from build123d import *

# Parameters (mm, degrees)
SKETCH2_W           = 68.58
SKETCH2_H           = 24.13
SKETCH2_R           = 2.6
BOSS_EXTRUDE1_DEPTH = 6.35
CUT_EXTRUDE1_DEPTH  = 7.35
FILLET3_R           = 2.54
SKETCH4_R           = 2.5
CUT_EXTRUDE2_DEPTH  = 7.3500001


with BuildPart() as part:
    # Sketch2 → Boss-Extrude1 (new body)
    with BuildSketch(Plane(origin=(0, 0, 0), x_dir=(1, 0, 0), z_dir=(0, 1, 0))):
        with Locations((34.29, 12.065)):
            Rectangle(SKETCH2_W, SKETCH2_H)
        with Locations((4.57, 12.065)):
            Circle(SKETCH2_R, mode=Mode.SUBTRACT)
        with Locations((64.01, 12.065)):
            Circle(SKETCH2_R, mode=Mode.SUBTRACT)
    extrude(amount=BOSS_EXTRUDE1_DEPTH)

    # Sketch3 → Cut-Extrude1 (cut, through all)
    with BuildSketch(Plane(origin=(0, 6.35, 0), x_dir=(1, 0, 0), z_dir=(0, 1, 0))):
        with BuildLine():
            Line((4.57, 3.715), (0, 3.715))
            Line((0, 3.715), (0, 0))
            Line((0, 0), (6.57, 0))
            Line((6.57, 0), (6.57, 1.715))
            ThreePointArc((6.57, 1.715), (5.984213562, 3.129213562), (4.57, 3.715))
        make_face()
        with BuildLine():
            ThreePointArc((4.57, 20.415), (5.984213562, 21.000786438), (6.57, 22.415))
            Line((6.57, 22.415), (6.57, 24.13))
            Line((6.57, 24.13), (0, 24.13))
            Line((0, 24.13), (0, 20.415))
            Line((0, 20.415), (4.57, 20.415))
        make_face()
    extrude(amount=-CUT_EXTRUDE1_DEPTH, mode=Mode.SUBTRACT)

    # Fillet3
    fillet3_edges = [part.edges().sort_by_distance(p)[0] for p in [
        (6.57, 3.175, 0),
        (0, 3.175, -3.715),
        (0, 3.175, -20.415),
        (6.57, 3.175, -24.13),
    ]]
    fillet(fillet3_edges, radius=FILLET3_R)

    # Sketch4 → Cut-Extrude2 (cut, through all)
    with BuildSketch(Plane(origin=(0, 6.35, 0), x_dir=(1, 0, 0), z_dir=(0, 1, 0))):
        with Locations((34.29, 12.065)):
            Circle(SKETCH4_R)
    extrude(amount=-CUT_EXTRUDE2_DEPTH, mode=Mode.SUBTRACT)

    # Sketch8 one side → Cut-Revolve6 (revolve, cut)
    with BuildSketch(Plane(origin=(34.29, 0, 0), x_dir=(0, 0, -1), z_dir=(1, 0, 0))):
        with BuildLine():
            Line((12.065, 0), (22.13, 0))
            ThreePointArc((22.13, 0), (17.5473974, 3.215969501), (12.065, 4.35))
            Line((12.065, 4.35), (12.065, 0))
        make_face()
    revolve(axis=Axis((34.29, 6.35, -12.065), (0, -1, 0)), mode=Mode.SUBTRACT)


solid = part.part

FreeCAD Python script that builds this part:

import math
import FreeCAD as App
import Part
import Sketcher

V = App.Vector
Q = App.Units.Quantity


def edges_at(feature, points):
    """Names of the edges that pass closest to the given points."""
    edges = feature.Shape.Edges
    near = lambda p: min(range(len(edges)), key=lambda i: edges[i].distToShape(Part.Vertex(*p))[0])
    return sorted({f"Edge{near(p) + 1}" for p in points})

doc = App.newDocument("Part")
body = doc.addObject("PartDesign::Body", "Body")

# Sketch on XZ plane
sketch1 = doc.addObject("Sketcher::SketchObject", "Sketch")
body.addObject(sketch1)
sketch1.AttachmentSupport = (doc.XZ_Plane, [""])
sketch1.MapMode = "FlatFace"
sketch1.addGeometry([
    Part.LineSegment(V(0, -24.1, 0), V(0, 0, 0)),  # 0
    Part.LineSegment(V(0, 0, 0), V(68.6, 0, 0)),  # 1
    Part.LineSegment(V(68.6, 0, 0), V(68.6, -24.1, 0)),  # 2
    Part.LineSegment(V(68.6, -24.1, 0), V(0, -24.1, 0)),  # 3
    Part.Circle(V(4.6, -12.1, 0), V(0, 0, 1), 2.6),  # 4
    Part.Circle(V(64, -12.1, 0), V(0, 0, 1), 2.6),  # 5
], False)
sketch1.addConstraint([
    Sketcher.Constraint("Coincident", 0, 2, 1, 1),
    Sketcher.Constraint("Coincident", 1, 2, 2, 1),
    Sketcher.Constraint("Coincident", 2, 2, 3, 1),
    Sketcher.Constraint("Coincident", 3, 2, 0, 1),
    Sketcher.Constraint("Vertical", 0),
    Sketcher.Constraint("Horizontal", 1),
    Sketcher.Constraint("Vertical", 2),
    Sketcher.Constraint("Horizontal", 3),
    Sketcher.Constraint("Coincident", 0, 2, -1, 1),
    Sketcher.Constraint("Equal", 4, 5),
    Sketcher.Constraint("Horizontal", 4, 3, 5, 3),
    Sketcher.Constraint("DistanceX", 1, 1, 1, 2, Q("2.7 in")),
    Sketcher.Constraint("DistanceY", 0, 1, 0, 2, Q("0.95 in")),
    Sketcher.Constraint("Diameter", 4, 5.2),
    Sketcher.Constraint("DistanceY", 4, 3, -1, 1, Q("0.475 in")),
    Sketcher.Constraint("DistanceX", -1, 1, 4, 3, 4.57),
    Sketcher.Constraint("DistanceX", -1, 1, 5, 3, 64.01),
])
pad1 = doc.addObject("PartDesign::Pad", "Pad")
body.addObject(pad1)
pad1.Profile = sketch1
pad1.Length = Q("0.25 in")
pad1.Reversed = True

# Sketch on XZ plane
sketch2 = doc.addObject("Sketcher::SketchObject", "Sketch001")
body.addObject(sketch2)
sketch2.AttachmentSupport = (doc.XZ_Plane, [""])
sketch2.MapMode = "FlatFace"
sketch2.AttachmentOffset = App.Placement(V(0, 0, -0.25 * 25.4), App.Rotation())
sketch2.addGeometry([
    Part.LineSegment(V(4.6, -3.7, 0), V(0, -3.7, 0)),  # 0
    Part.LineSegment(V(0, -3.7, 0), V(0, 0, 0)),  # 1
    Part.LineSegment(V(0, 0, 0), V(6.6, 0, 0)),  # 2
    Part.LineSegment(V(6.6, 0, 0), V(6.6, -1.7, 0)),  # 3
    Part.ArcOfCircle(Part.Circle(V(4.6, -1.7, 0), V(0, 0, 1), 2), math.radians(-90), math.radians(0)),  # 4
    Part.ArcOfCircle(Part.Circle(V(4.6, -22.4, 0), V(0, 0, 1), 2), math.radians(0), math.radians(90)),  # 5
    Part.LineSegment(V(6.6, -22.4, 0), V(6.6, -24.1, 0)),  # 6
    Part.LineSegment(V(6.6, -24.1, 0), V(0, -24.1, 0)),  # 7
    Part.LineSegment(V(0, -24.1, 0), V(0, -20.4, 0)),  # 8
    Part.LineSegment(V(0, -20.4, 0), V(4.6, -20.4, 0)),  # 9
], False)
sketch2.addConstraint([
    Sketcher.Constraint("Coincident", 0, 2, 1, 1),
    Sketcher.Constraint("Coincident", 1, 2, 2, 1),
    Sketcher.Constraint("Coincident", 2, 2, 3, 1),
    Sketcher.Constraint("Tangent", 3, 2, 4, 2),
    Sketcher.Constraint("Tangent", 4, 1, 0, 1),
    Sketcher.Constraint("Tangent", 5, 1, 6, 1),
    Sketcher.Constraint("Coincident", 6, 2, 7, 1),
    Sketcher.Constraint("Coincident", 7, 2, 8, 1),
    Sketcher.Constraint("Coincident", 8, 2, 9, 1),
    Sketcher.Constraint("Tangent", 9, 2, 5, 2),
    Sketcher.Constraint("Horizontal", 0),
    Sketcher.Constraint("Vertical", 1),
    Sketcher.Constraint("Horizontal", 2),
    Sketcher.Constraint("Vertical", 3),
    Sketcher.Constraint("Vertical", 6),
    Sketcher.Constraint("Horizontal", 7),
    Sketcher.Constraint("Vertical", 8),
    Sketcher.Constraint("Horizontal", 9),
    Sketcher.Constraint("Coincident", 1, 2, -1, 1),
    Sketcher.Constraint("Equal", 4, 5),
    Sketcher.Constraint("PointOnObject", 7, 2, -2),
    Sketcher.Constraint("Vertical", 4, 3, 5, 3),
    Sketcher.Constraint("Equal", 3, 6),
    Sketcher.Constraint("DistanceY", 6, 2, -1, 1, Q("0.95 in")),
    Sketcher.Constraint("Radius", 4, 2.0),
    Sketcher.Constraint("DistanceX", 0, 2, 0, 1, 4.57),
    Sketcher.Constraint("DistanceY", 1, 1, 1, 2, 3.715),
])
pocket1 = doc.addObject("PartDesign::Pocket", "Pocket")
body.addObject(pocket1)
pocket1.Profile = sketch2
pocket1.Type = "ThroughAll"
pocket1.Reversed = True
doc.recompute()

fillet = doc.addObject("PartDesign::Fillet", "Fillet")
body.addObject(fillet)
fillet.Base = (pocket1, edges_at(pocket1, [
    (6.57, 3.175, 0),
    (0, 3.175, -3.715),
    (0, 3.175, -20.415),
    (6.57, 3.175, -24.13),
]))
fillet.Radius = Q("0.1 in")

# Sketch on XZ plane
sketch3 = doc.addObject("Sketcher::SketchObject", "Sketch002")
body.addObject(sketch3)
sketch3.AttachmentSupport = (doc.XZ_Plane, [""])
sketch3.MapMode = "FlatFace"
sketch3.AttachmentOffset = App.Placement(V(0, 0, -0.25 * 25.4), App.Rotation())
sketch3.addGeometry(Part.Circle(V(34.3, -12.1, 0), V(0, 0, 1), 2.5), False)
sketch3.addConstraint([
    Sketcher.Constraint("Diameter", 0, 5.0),
    Sketcher.Constraint("DistanceX", -1, 1, 0, 3, Q("1.35 in")),
    Sketcher.Constraint("DistanceY", 0, 3, -1, 1, Q("0.475 in")),
])
pocket2 = doc.addObject("PartDesign::Pocket", "Pocket001")
body.addObject(pocket2)
pocket2.Profile = sketch3
pocket2.Type = "ThroughAll"
pocket2.Reversed = True

# Sketch on YZ plane
sketch4 = doc.addObject("Sketcher::SketchObject", "Sketch003")
body.addObject(sketch4)
sketch4.AttachmentSupport = (doc.YZ_Plane, [""])
sketch4.MapMode = "FlatFace"
sketch4.AttachmentOffset = App.Placement(V(0, 0, 1.35 * 25.4), App.Rotation())
sketch4.addGeometry([
    Part.LineSegment(V(0, -12.1, 0), V(0, -22.1, 0)),
    Part.ArcOfCircle(Part.Circle(V(-9.5, -12.1, 0), V(0, 0, 1), 13.8), math.radians(-47), math.radians(0)),
    Part.LineSegment(V(4.3, -12.1, 0), V(0, -12.1, 0)),
], False)
sketch4.addGeometry(Part.LineSegment(V(4.3, -12.1, 0), V(-9.5, -12.1, 0)), True)  # axis
sketch4.addConstraint([
    Sketcher.Constraint("Coincident", 0, 2, 1, 1),
    Sketcher.Constraint("Coincident", 1, 2, 2, 1),
    Sketcher.Constraint("Coincident", 2, 2, 0, 1),
    Sketcher.Constraint("Vertical", 0),
    Sketcher.Constraint("Horizontal", 2),
    Sketcher.Constraint("Horizontal", 3),
    Sketcher.Constraint("Coincident", 3, 1, 1, 2),
    Sketcher.Constraint("Coincident", 3, 2, 1, 3),
    Sketcher.Constraint("PointOnObject", 0, 2, -2),
    Sketcher.Constraint("DistanceY", 1, 3, -1, 1, Q("0.475 in")),
    Sketcher.Constraint("DistanceX", 2, 2, 2, 1, 4.35),
    Sketcher.Constraint("DistanceY", 0, 2, 0, 1, 10.065),
])
groove = doc.addObject("PartDesign::Groove", "Groove")
body.addObject(groove)
groove.Profile = sketch4
groove.ReferenceAxis = (sketch4, ["Axis0"])
groove.Angle = 360

doc.recompute()
